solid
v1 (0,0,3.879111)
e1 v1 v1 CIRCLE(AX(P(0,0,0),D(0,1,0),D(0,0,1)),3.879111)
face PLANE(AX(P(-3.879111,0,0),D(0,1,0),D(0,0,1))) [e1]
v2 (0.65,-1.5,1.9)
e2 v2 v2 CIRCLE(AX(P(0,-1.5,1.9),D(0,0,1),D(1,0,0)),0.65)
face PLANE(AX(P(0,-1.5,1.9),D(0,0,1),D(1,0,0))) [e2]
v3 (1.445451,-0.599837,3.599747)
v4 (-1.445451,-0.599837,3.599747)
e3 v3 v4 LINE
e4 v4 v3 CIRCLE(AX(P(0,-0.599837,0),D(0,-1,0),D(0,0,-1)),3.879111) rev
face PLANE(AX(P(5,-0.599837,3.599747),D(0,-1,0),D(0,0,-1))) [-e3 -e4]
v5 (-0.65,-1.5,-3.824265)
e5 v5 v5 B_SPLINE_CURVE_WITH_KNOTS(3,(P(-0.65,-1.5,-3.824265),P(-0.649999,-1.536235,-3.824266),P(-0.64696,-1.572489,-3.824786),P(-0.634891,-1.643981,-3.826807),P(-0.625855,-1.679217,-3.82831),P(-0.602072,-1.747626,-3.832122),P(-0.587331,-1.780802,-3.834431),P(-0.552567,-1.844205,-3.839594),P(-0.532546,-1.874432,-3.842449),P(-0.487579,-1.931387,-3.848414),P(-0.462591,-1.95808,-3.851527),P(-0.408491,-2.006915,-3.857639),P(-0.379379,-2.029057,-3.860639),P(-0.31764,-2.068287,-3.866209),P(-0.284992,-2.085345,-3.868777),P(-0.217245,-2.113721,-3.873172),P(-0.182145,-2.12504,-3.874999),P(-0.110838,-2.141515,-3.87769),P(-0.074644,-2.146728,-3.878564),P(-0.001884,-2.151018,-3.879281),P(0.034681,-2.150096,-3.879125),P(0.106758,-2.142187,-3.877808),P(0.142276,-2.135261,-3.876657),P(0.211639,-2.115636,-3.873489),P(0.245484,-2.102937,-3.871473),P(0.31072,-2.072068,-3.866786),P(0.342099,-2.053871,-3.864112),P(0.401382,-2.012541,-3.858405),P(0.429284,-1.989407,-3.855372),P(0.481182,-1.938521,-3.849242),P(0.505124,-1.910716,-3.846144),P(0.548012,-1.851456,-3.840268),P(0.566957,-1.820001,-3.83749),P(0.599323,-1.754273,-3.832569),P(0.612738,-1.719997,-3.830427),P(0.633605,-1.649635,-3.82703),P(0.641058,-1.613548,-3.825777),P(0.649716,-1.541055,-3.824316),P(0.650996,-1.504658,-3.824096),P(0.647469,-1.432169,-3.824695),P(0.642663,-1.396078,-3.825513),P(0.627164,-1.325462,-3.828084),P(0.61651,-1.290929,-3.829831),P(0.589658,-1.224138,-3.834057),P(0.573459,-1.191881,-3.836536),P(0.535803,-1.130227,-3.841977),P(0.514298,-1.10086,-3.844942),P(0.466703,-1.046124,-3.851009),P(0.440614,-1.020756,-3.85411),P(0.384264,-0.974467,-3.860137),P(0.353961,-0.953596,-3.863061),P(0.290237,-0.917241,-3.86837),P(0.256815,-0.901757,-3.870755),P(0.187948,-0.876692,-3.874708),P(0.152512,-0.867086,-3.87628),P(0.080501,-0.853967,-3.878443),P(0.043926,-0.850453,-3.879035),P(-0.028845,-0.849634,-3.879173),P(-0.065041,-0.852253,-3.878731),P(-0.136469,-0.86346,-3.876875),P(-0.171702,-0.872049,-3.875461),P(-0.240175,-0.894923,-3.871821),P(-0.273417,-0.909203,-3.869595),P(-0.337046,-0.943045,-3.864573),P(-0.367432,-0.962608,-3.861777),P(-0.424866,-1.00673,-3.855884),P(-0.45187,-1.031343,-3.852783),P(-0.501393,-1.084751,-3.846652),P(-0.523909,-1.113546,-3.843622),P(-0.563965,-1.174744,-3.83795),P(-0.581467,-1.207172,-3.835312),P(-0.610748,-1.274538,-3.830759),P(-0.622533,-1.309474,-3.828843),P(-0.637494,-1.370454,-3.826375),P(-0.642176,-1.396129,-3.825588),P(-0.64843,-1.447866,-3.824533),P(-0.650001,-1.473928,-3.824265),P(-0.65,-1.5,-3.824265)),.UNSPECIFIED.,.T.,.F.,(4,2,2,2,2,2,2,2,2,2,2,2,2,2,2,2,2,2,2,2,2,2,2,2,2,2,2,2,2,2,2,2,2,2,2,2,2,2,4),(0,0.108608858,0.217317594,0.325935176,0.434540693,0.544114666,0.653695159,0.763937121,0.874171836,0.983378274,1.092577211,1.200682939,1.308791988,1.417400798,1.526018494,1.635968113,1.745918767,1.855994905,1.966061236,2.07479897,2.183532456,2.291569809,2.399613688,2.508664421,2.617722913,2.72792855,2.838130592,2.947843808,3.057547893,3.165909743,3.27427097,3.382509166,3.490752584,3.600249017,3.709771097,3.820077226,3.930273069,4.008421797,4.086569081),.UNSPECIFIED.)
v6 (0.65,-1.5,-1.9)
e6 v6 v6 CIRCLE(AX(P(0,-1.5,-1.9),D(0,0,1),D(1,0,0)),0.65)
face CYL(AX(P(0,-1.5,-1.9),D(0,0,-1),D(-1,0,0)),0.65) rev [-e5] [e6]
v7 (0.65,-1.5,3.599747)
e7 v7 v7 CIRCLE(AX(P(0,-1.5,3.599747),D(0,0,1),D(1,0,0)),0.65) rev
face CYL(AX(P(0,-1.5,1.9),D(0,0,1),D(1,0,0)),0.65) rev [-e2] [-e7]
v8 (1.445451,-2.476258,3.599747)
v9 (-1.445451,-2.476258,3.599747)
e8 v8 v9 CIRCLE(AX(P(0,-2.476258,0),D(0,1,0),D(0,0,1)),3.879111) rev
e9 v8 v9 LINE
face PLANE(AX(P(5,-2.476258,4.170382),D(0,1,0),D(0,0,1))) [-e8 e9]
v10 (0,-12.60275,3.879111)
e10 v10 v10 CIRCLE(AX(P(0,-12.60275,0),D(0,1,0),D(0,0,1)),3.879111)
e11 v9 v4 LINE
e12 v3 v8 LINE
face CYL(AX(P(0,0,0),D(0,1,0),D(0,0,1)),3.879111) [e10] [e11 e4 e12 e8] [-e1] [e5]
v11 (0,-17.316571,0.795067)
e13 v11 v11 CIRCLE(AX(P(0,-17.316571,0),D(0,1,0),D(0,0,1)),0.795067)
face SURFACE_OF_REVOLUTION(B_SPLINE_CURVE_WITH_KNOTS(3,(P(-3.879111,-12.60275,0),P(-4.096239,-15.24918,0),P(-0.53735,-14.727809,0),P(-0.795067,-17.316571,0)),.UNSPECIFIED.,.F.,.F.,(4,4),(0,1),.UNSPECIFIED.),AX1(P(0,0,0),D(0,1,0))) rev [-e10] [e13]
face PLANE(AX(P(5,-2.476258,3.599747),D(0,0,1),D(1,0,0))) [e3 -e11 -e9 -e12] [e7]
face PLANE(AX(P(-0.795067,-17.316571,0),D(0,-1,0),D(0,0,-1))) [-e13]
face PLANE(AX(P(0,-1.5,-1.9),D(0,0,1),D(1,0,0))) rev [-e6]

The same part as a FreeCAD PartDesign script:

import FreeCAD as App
import Part
import Sketcher
from FreeCAD import Vector
Q = App.Units.Quantity

doc = App.newDocument("Part")
body = doc.addObject("PartDesign::Body", "Body")

sketch1 = body.newObject("Sketcher::SketchObject", "Sketch")
sketch1.AttachmentSupport = (doc.getObject("XY_Plane"), [""])
sketch1.MapMode = "FlatFace"
sketch1.addGeometry(Part.LineSegment(Vector(-3.879111, 0, 0), Vector(-3.879111, -12, 0)), False)
sketch1.addGeometry(Part.BSplineCurve([Vector(-3.879111, -12, 0), Vector(-3.879111, -12.60275, 0)], [2, 2], [0, 1], False, 1, [1, 1], False), False)
sketch1.addGeometry(Part.BSplineCurve([Vector(-3.879111, -12.60275, 0), Vector(-4.096239, -15.24918, 0), Vector(-0.53735, -14.727809, 0), Vector(-0.795067, -17.316571, 0)], [4, 4], [0, 1], False, 3, [1, 1, 1, 1], False), False)
sketch1.addGeometry(Part.LineSegment(Vector(-0.795067, -17.316571, 0), Vector(0, -17.316571, 0)), False)
sketch1.addGeometry(Part.LineSegment(Vector(0, -17.316571, 0), Vector(0, 0, 0)), False)
sketch1.addGeometry(Part.LineSegment(Vector(0, 0, 0), Vector(-3.879111, 0, 0)), False)
sketch1.addConstraint(Sketcher.Constraint("Block", 1))
sketch1.addConstraint(Sketcher.Constraint("Block", 2))
sketch1.addConstraint(Sketcher.Constraint("Coincident", 0, 2, 1, 1))
sketch1.addConstraint(Sketcher.Constraint("Coincident", 2, 2, 3, 1))
sketch1.addConstraint(Sketcher.Constraint("Coincident", 3, 2, 4, 1))
sketch1.addConstraint(Sketcher.Constraint("Coincident", 4, 2, 5, 1))
sketch1.addConstraint(Sketcher.Constraint("Coincident", 5, 2, 0, 1))
sketch1.addConstraint(Sketcher.Constraint("Vertical", 0))
sketch1.addConstraint(Sketcher.Constraint("Horizontal", 3))
sketch1.addConstraint(Sketcher.Constraint("Vertical", 4))
sketch1.addConstraint(Sketcher.Constraint("Horizontal", 5))
sketch1.addConstraint(Sketcher.Constraint("Coincident", 4, 2, -1, 1))
revolution = body.newObject("PartDesign::Revolution", "Revolution")
revolution.Profile = sketch1
revolution.ReferenceAxis = (sketch1, ["V_Axis"])
revolution.Angle = 360

sketch2 = body.newObject("Sketcher::SketchObject", "Sketch001")
sketch2.AttachmentSupport = (doc.getObject("XY_Plane"), [""])
sketch2.MapMode = "FlatFace"
sketch2.AttachmentOffset = App.Placement(Vector(0, 0, 3.9), App.Rotation())
sketch2.addGeometry(Part.Circle(Vector(0, -1.5, 0), Vector(0, 0, 1), 0.65), False)
sketch2.addConstraint(Sketcher.Constraint("PointOnObject", 0, 3, -2))
sketch2.addConstraint(Sketcher.Constraint("Diameter", 0, Q("1.3 mm")))
sketch2.addConstraint(Sketcher.Constraint("DistanceY", 0, 3, -1, 1, Q("1.5 mm")))
pocket1 = body.newObject("PartDesign::Pocket", "Pocket")
pocket1.Profile = sketch2
pocket1.Length = 2

sketch3 = body.newObject("Sketcher::SketchObject", "Sketch002")
sketch3.AttachmentSupport = (doc.getObject("XY_Plane"), [""])
sketch3.MapMode = "FlatFace"
sketch3.AttachmentOffset = App.Placement(Vector(0, 0, -3.9), App.Rotation())
sketch3.addGeometry(Part.Circle(Vector(0, -1.5, 0), Vector(0, 0, 1), 0.65), False)
sketch3.addConstraint(Sketcher.Constraint("PointOnObject", 0, 3, -2))
sketch3.addConstraint(Sketcher.Constraint("Diameter", 0, Q("1.3 mm")))
sketch3.addConstraint(Sketcher.Constraint("DistanceY", 0, 3, -1, 1, Q("1.5 mm")))
pocket2 = body.newObject("PartDesign::Pocket", "Pocket001")
pocket2.Profile = sketch3
pocket2.Length = 2
pocket2.Reversed = True

sketch4 = body.newObject("Sketcher::SketchObject", "Sketch003")
sketch4.AttachmentSupport = (doc.getObject("YZ_Plane"), [""])
sketch4.MapMode = "FlatFace"
sketch4.addGeometry(Part.LineSegment(Vector(-0.599837, 4.170382, 0), Vector(-2.476258, 4.170382, 0)), False)
sketch4.addGeometry(Part.LineSegment(Vector(-2.476258, 4.170382, 0), Vector(-2.476258, 3.599747, 0)), False)
sketch4.addGeometry(Part.LineSegment(Vector(-2.476258, 3.599747, 0), Vector(-0.599837, 3.599747, 0)), False)
sketch4.addGeometry(Part.LineSegment(Vector(-0.599837, 3.599747, 0), Vector(-0.599837, 4.170382, 0)), False)
sketch4.addConstraint(Sketcher.Constraint("Coincident", 0, 2, 1, 1))
sketch4.addConstraint(Sketcher.Constraint("Coincident", 1, 2, 2, 1))
sketch4.addConstraint(Sketcher.Constraint("Coincident", 2, 2, 3, 1))
sketch4.addConstraint(Sketcher.Constraint("Coincident", 3, 2, 0, 1))
sketch4.addConstraint(Sketcher.Constraint("Horizontal", 0))
sketch4.addConstraint(Sketcher.Constraint("Vertical", 1))
sketch4.addConstraint(Sketcher.Constraint("Horizontal", 2))
sketch4.addConstraint(Sketcher.Constraint("Vertical", 3))
sketch4.addConstraint(Sketcher.Constraint("DistanceX", 0, 2, 0, 1, Q("1.87642 mm")))
sketch4.addConstraint(Sketcher.Constraint("DistanceY", 1, 2, 1, 1, Q("0.570635 mm")))
sketch4.addConstraint(Sketcher.Constraint("DistanceY", -1, 1, 0, 2, Q("4.170382 mm")))
sketch4.addConstraint(Sketcher.Constraint("DistanceX", 0, 2, -1, 1, Q("2.476258 mm")))
pocket3 = body.newObject("PartDesign::Pocket", "Pocket002")
pocket3.Profile = sketch4
pocket3.Type = "ThroughAll"
pocket3.Midplane = True

doc.recompute()
